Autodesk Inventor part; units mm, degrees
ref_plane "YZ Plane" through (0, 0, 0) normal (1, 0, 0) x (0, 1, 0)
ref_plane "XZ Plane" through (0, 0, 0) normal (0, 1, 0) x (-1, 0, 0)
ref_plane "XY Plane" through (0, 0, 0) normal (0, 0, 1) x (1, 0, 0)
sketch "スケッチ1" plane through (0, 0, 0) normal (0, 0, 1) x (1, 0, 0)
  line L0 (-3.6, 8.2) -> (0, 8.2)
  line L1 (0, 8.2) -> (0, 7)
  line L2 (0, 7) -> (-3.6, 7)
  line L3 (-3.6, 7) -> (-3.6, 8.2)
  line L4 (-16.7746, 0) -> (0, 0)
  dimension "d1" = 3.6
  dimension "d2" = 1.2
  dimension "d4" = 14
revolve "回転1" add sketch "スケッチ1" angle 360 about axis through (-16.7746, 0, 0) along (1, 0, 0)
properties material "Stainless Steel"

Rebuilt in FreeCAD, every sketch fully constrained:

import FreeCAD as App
import Part
import Sketcher
from FreeCAD import Vector
Q = App.Units.Quantity


def add_polygon(sketch, points):
    """Adds a closed chain of lines whose ends are joined by coincident constraints."""
    first, n = sketch.GeometryCount, len(points)
    for a, b in zip(points, points[1:] + points[:1]):
        sketch.addGeometry(Part.LineSegment(App.Vector(*a, 0), App.Vector(*b, 0)), False)
    for i in range(n):
        sketch.addConstraint(Sketcher.Constraint("Coincident", first + i, 2, first + (i + 1) % n, 1))

doc = App.newDocument("Part")
body = doc.addObject("PartDesign::Body", "Body")

# Sketch on XY plane
sketch1 = body.newObject("Sketcher::SketchObject", "Sketch")
sketch1.AttachmentSupport = (doc.getObject("XY_Plane"), [""])
sketch1.MapMode = "FlatFace"
add_polygon(sketch1, [(0, 8.2), (-3.6, 8.2), (-3.6, 7), (0, 7)])  # lines 0-3
sketch1.addConstraint([
    Sketcher.Constraint("Horizontal", 0),
    Sketcher.Constraint("Vertical", 1),
    Sketcher.Constraint("Horizontal", 2),
    Sketcher.Constraint("Vertical", 3),
    Sketcher.Constraint("PointOnObject", 2, 2, -2),
    Sketcher.Constraint("DistanceX", 0, 2, 0, 1, Q("3.6 mm")),
    Sketcher.Constraint("DistanceY", 1, 2, 1, 1, Q("1.2 mm")),
    Sketcher.Constraint("DistanceY", -1, 1, 1, 2, Q("7 mm")),
])
revolution = body.newObject("PartDesign::Revolution", "Revolution")
revolution.Profile = sketch1
revolution.ReferenceAxis = (sketch1, ["H_Axis"])
revolution.Angle = 360

doc.recompute()
